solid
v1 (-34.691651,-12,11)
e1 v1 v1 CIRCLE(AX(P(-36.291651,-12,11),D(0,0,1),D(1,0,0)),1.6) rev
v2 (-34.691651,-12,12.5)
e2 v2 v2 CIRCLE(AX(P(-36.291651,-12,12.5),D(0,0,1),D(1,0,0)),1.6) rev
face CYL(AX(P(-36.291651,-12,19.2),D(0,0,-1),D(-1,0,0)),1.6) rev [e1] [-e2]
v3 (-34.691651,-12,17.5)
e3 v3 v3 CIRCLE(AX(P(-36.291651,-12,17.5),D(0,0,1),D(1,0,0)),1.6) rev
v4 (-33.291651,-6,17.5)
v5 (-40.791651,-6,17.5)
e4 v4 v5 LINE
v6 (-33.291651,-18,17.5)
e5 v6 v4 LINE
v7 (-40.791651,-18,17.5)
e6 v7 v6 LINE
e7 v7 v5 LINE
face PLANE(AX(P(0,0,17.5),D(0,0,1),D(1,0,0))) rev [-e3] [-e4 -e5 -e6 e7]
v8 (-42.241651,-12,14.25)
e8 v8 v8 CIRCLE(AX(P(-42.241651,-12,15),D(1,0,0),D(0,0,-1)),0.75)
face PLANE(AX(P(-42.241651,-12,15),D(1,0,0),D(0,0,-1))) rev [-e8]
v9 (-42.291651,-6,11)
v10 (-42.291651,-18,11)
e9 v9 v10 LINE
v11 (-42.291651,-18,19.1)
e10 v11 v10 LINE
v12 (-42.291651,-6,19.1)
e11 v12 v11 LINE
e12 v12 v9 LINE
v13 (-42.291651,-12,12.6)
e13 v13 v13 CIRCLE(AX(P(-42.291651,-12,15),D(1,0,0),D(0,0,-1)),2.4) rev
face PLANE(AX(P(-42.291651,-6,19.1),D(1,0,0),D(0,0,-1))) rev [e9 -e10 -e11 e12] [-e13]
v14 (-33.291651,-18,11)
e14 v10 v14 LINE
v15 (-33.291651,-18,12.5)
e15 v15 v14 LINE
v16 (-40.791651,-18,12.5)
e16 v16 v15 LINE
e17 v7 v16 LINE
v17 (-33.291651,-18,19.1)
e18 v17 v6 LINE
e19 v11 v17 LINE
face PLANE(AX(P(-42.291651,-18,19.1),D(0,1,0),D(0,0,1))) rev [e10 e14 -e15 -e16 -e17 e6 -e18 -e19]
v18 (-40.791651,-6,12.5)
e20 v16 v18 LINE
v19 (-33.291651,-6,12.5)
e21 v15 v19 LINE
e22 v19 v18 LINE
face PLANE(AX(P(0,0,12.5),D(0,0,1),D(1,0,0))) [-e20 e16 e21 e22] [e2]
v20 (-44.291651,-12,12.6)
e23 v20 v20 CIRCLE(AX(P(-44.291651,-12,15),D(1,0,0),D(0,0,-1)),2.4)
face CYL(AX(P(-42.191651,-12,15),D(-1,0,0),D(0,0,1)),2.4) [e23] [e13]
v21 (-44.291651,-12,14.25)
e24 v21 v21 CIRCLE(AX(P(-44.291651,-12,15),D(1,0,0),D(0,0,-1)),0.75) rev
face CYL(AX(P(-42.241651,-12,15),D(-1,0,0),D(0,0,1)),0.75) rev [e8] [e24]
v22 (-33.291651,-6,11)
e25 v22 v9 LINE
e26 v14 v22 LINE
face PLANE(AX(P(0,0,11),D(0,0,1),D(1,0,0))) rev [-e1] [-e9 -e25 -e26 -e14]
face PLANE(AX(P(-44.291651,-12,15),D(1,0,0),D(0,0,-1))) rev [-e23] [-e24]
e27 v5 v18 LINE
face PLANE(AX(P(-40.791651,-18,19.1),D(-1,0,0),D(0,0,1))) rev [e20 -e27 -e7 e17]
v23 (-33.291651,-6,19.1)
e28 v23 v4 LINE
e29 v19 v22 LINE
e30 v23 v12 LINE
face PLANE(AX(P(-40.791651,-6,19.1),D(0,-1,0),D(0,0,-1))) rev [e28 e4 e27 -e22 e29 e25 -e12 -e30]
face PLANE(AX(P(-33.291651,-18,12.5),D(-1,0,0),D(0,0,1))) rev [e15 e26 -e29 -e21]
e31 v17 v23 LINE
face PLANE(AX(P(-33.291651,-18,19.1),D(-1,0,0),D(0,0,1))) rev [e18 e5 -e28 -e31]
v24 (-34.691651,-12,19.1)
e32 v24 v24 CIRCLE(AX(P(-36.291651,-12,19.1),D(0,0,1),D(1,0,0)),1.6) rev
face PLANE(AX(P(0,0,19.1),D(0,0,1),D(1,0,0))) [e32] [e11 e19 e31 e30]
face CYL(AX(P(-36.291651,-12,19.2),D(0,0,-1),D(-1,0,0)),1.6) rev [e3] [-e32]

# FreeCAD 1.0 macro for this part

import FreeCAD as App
import Part
import Sketcher

doc = App.newDocument("Part")
body = doc.addObject("PartDesign::Body", "Body")

# Sketch on XY plane
sketch1 = doc.addObject("Sketcher::SketchObject", "Sketch")
body.addObject(sketch1)
sketch1.AttachmentSupport = (doc.XY_Plane, [""])
sketch1.MapMode = "FlatFace"
sketch1.AttachmentOffset = App.Placement(App.Vector(0, 0, 11), App.Rotation())
sketch1.addGeometry([
    Part.LineSegment(App.Vector(-42.291651, -6, 0), App.Vector(-42.291651, -18, 0)),
    Part.LineSegment(App.Vector(-42.291651, -18, 0), App.Vector(-40.791651, -18, 0)),
    Part.LineSegment(App.Vector(-40.791651, -18, 0), App.Vector(-40.791651, -6, 0)),
    Part.LineSegment(App.Vector(-40.791651, -6, 0), App.Vector(-42.291651, -6, 0)),
], False)
sketch1.addConstraint([
    Sketcher.Constraint("Coincident", 0, 2, 1, 1),
    Sketcher.Constraint("Coincident", 1, 2, 2, 1),
    Sketcher.Constraint("Coincident", 2, 2, 3, 1),
    Sketcher.Constraint("Coincident", 3, 2, 0, 1),
    Sketcher.Constraint("Vertical", 0),
    Sketcher.Constraint("Horizontal", 1),
    Sketcher.Constraint("Vertical", 2),
    Sketcher.Constraint("Horizontal", 3),
    Sketcher.Constraint("DistanceY", 0, 2, 0, 1, 12.0),
    Sketcher.Constraint("DistanceX", 1, 1, 1, 2, 1.5),
    Sketcher.Constraint("DistanceY", 0, 2, -1, 1, 18.0),
    Sketcher.Constraint("DistanceX", 0, 2, -1, 1, 42.291651),
])
pad1 = doc.addObject("PartDesign::Pad", "Pad")
body.addObject(pad1)
pad1.Profile = sketch1
pad1.Length = 8.1

# Sketch on XY plane
sketch2 = doc.addObject("Sketcher::SketchObject", "Sketch001")
body.addObject(sketch2)
sketch2.AttachmentSupport = (doc.XY_Plane, [""])
sketch2.MapMode = "FlatFace"
sketch2.AttachmentOffset = App.Placement(App.Vector(0, 0, 11), App.Rotation())
sketch2.addGeometry([
    Part.LineSegment(App.Vector(-40.891651, -6, 0), App.Vector(-40.891651, -18, 0)),
    Part.LineSegment(App.Vector(-40.891651, -18, 0), App.Vector(-33.291651, -18, 0)),
    Part.LineSegment(App.Vector(-33.291651, -18, 0), App.Vector(-33.291651, -6, 0)),
    Part.LineSegment(App.Vector(-33.291651, -6, 0), App.Vector(-40.891651, -6, 0)),
], False)
sketch2.addConstraint([
    Sketcher.Constraint("Coincident", 0, 2, 1, 1),
    Sketcher.Constraint("Coincident", 1, 2, 2, 1),
    Sketcher.Constraint("Coincident", 2, 2, 3, 1),
    Sketcher.Constraint("Coincident", 3, 2, 0, 1),
    Sketcher.Constraint("Vertical", 0),
    Sketcher.Constraint("Horizontal", 1),
    Sketcher.Constraint("Vertical", 2),
    Sketcher.Constraint("Horizontal", 3),
    Sketcher.Constraint("DistanceY", 0, 2, 0, 1, 12.0),
    Sketcher.Constraint("DistanceX", 1, 1, 1, 2, 7.6),
    Sketcher.Constraint("DistanceY", 0, 2, -1, 1, 18.0),
    Sketcher.Constraint("DistanceX", 0, 2, -1, 1, 40.891651),
])
pad2 = doc.addObject("PartDesign::Pad", "Pad001")
body.addObject(pad2)
pad2.Profile = sketch2
pad2.Length = 1.5

# Sketch on XY plane
sketch3 = doc.addObject("Sketcher::SketchObject", "Sketch002")
body.addObject(sketch3)
sketch3.AttachmentSupport = (doc.XY_Plane, [""])
sketch3.MapMode = "FlatFace"
sketch3.AttachmentOffset = App.Placement(App.Vector(0, 0, 17.5), App.Rotation())
sketch3.addGeometry([
    Part.LineSegment(App.Vector(-40.891651, -6, 0), App.Vector(-40.891651, -18, 0)),
    Part.LineSegment(App.Vector(-40.891651, -18, 0), App.Vector(-33.291651, -18, 0)),
    Part.LineSegment(App.Vector(-33.291651, -18, 0), App.Vector(-33.291651, -6, 0)),
    Part.LineSegment(App.Vector(-33.291651, -6, 0), App.Vector(-40.891651, -6, 0)),
], False)
sketch3.addConstraint([
    Sketcher.Constraint("Coincident", 0, 2, 1, 1),
    Sketcher.Constraint("Coincident", 1, 2, 2, 1),
    Sketcher.Constraint("Coincident", 2, 2, 3, 1),
    Sketcher.Constraint("Coincident", 3, 2, 0, 1),
    Sketcher.Constraint("Vertical", 0),
    Sketcher.Constraint("Horizontal", 1),
    Sketcher.Constraint("Vertical", 2),
    Sketcher.Constraint("Horizontal", 3),
    Sketcher.Constraint("DistanceY", 0, 2, 0, 1, 12.0),
    Sketcher.Constraint("DistanceX", 1, 1, 1, 2, 7.6),
    Sketcher.Constraint("DistanceY", 0, 2, -1, 1, 18.0),
    Sketcher.Constraint("DistanceX", 0, 2, -1, 1, 40.891651),
])
pad3 = doc.addObject("PartDesign::Pad", "Pad002")
body.addObject(pad3)
pad3.Profile = sketch3
pad3.Length = 1.6

# Sketch on YZ plane
sketch4 = doc.addObject("Sketcher::SketchObject", "Sketch003")
body.addObject(sketch4)
sketch4.AttachmentSupport = (doc.YZ_Plane, [""])
sketch4.MapMode = "FlatFace"
sketch4.AttachmentOffset = App.Placement(App.Vector(0, 0, -44.291651), App.Rotation())
sketch4.addGeometry(Part.Circle(App.Vector(-12, 15, 0), App.Vector(0, 0, 1), 2.4), False)
sketch4.addConstraint([
    Sketcher.Constraint("Diameter", 0, 4.8),
    Sketcher.Constraint("DistanceX", 0, 3, -1, 1, 12.0),
    Sketcher.Constraint("DistanceY", -1, 1, 0, 3, 15.0),
])
pad4 = doc.addObject("PartDesign::Pad", "Pad003")
body.addObject(pad4)
pad4.Profile = sketch4
pad4.Length = 2.1

# Sketch on YZ plane
sketch5 = doc.addObject("Sketcher::SketchObject", "Sketch004")
body.addObject(sketch5)
sketch5.AttachmentSupport = (doc.YZ_Plane, [""])
sketch5.MapMode = "FlatFace"
sketch5.AttachmentOffset = App.Placement(App.Vector(0, 0, -44.391651), App.Rotation())
sketch5.addGeometry(Part.Circle(App.Vector(-12, 15, 0), App.Vector(0, 0, 1), 0.75), False)
sketch5.addConstraint([
    Sketcher.Constraint("Diameter", 0, 1.5),
    Sketcher.Constraint("DistanceX", 0, 3, -1, 1, 12.0),
    Sketcher.Constraint("DistanceY", -1, 1, 0, 3, 15.0),
])
pocket1 = doc.addObject("PartDesign::Pocket", "Pocket")
body.addObject(pocket1)
pocket1.Profile = sketch5
pocket1.Length = 2.15
pocket1.Reversed = True

# Sketch on XY plane
sketch6 = doc.addObject("Sketcher::SketchObject", "Sketch005")
body.addObject(sketch6)
sketch6.AttachmentSupport = (doc.XY_Plane, [""])
sketch6.MapMode = "FlatFace"
sketch6.AttachmentOffset = App.Placement(App.Vector(0, 0, 10.9), App.Rotation())
sketch6.addGeometry(Part.Circle(App.Vector(-36.291651, -12, 0), App.Vector(0, 0, 1), 1.6), False)
sketch6.addConstraint([
    Sketcher.Constraint("Diameter", 0, 3.2),
    Sketcher.Constraint("DistanceY", 0, 3, -1, 1, 12.0),
    Sketcher.Constraint("DistanceX", 0, 3, -1, 1, 36.291651),
])
pocket2 = doc.addObject("PartDesign::Pocket", "Pocket001")
body.addObject(pocket2)
pocket2.Profile = sketch6
pocket2.Length = 8.3
pocket2.Reversed = True

doc.recompute()
